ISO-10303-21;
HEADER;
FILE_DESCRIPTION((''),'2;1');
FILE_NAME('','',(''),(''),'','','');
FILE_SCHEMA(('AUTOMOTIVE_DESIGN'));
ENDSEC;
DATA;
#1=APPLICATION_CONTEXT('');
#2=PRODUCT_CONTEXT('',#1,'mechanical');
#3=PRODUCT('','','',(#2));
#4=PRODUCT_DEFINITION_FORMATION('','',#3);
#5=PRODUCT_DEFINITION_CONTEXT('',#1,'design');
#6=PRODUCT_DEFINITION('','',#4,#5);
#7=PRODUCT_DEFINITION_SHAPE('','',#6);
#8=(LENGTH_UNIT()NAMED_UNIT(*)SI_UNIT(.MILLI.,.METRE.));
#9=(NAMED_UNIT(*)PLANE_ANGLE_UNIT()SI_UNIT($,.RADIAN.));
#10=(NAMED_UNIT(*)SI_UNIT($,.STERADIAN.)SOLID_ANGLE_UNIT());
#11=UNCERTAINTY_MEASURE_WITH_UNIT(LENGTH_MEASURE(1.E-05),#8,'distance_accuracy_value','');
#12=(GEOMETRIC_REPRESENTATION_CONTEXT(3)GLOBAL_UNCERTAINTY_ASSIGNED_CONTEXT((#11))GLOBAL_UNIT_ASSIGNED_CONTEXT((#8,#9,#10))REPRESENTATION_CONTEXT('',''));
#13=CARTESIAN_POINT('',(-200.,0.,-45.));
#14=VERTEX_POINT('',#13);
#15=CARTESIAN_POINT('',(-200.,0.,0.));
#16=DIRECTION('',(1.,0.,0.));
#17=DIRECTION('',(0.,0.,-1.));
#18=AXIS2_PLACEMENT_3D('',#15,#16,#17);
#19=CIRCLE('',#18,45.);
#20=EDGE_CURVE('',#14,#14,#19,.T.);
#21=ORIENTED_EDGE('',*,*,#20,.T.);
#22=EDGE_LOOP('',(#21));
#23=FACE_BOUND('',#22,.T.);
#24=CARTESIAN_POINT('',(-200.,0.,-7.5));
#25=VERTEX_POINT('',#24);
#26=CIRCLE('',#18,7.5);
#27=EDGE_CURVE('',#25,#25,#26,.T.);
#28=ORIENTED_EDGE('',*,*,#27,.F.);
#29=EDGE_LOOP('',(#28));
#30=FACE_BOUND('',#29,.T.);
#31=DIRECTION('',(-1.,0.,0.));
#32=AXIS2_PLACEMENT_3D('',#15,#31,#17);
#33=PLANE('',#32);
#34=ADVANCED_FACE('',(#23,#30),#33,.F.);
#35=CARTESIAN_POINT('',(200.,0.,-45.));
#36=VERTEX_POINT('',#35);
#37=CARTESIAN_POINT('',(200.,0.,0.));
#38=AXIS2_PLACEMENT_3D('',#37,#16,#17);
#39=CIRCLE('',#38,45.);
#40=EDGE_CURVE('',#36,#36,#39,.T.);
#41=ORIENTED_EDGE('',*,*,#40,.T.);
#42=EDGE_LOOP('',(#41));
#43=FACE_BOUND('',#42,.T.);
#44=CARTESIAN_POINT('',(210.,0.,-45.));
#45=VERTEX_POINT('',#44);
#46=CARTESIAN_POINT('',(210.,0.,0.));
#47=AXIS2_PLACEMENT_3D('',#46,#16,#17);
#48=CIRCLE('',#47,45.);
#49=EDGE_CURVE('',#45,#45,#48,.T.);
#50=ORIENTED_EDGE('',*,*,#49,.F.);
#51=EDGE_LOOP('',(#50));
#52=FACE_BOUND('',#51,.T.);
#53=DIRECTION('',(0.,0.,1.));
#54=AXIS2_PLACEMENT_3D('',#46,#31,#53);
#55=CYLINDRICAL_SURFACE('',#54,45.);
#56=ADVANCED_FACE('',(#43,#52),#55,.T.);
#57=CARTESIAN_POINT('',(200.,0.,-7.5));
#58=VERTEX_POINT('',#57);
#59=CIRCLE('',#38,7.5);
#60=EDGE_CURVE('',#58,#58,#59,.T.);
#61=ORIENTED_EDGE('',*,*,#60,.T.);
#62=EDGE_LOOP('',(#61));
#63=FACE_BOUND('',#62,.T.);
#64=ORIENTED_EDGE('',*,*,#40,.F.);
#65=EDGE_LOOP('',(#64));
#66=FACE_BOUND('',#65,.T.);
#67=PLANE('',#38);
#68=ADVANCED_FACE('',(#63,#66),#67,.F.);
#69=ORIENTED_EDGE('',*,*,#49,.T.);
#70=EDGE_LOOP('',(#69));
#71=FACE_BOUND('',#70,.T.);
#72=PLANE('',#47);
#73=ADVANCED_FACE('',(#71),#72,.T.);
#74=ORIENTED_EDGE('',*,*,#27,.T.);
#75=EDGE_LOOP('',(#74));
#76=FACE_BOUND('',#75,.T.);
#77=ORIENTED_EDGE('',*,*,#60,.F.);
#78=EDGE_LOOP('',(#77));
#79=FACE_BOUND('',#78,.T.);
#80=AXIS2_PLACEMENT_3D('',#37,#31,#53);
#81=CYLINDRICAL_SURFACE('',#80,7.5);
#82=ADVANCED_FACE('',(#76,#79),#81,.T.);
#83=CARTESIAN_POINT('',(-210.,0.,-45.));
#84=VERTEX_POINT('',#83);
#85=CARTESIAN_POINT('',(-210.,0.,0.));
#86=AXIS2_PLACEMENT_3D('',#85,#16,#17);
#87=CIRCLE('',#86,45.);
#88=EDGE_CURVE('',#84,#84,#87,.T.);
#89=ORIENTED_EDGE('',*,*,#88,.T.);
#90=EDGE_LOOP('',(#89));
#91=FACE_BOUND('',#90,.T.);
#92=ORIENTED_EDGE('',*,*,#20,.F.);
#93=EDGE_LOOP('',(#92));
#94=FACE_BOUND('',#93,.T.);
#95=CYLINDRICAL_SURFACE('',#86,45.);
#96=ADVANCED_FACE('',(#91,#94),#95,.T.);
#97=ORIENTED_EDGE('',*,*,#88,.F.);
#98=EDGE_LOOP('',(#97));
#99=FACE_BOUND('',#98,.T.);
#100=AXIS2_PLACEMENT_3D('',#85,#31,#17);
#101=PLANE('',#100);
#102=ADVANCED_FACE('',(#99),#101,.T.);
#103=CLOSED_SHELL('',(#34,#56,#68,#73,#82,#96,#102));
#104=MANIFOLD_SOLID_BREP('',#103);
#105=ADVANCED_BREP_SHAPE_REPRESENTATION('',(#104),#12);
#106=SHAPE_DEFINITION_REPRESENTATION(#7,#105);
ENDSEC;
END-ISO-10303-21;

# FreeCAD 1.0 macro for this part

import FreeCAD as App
import Part
import Sketcher

doc = App.newDocument("Part")
body = doc.addObject("PartDesign::Body", "Body")

# Sketch on YZ plane
sketch1 = body.newObject("Sketcher::SketchObject", "Sketch")
sketch1.AttachmentSupport = (doc.getObject("YZ_Plane"), [""])
sketch1.MapMode = "FlatFace"
sketch1.addGeometry(Part.Circle(App.Vector(0, 0, 0), App.Vector(0, 0, 1), 8), False)
sketch1.addConstraint(Sketcher.Constraint("Coincident", 0, 3, -1, 1))
sketch1.addConstraint(Sketcher.Constraint("Diameter", 0, 15.0))
pad1 = body.newObject("PartDesign::Pad", "Pad")
pad1.Profile = sketch1
pad1.Length = 400
pad1.Midplane = True

# Sketch on YZ plane
sketch2 = body.newObject("Sketcher::SketchObject", "Sketch001")
sketch2.AttachmentSupport = (doc.getObject("YZ_Plane"), [""])
sketch2.MapMode = "FlatFace"
sketch2.AttachmentOffset = App.Placement(App.Vector(0, 0, 200), App.Rotation())
sketch2.addGeometry(Part.Circle(App.Vector(0, 0, 0), App.Vector(0, 0, 1), 45), False)
sketch2.addConstraint(Sketcher.Constraint("Coincident", 0, 3, -1, 1))
sketch2.addConstraint(Sketcher.Constraint("Diameter", 0, 90.0))
pad2 = body.newObject("PartDesign::Pad", "Pad001")
pad2.Profile = sketch2
pad2.Length = 10
doc.recompute()

mirrored = body.newObject("PartDesign::Mirrored", "Mirrored")
mirrored.Originals = [pad2]
mirrored.MirrorPlane = (doc.getObject("YZ_Plane"), [""])
body.Tip = mirrored

doc.recompute()
